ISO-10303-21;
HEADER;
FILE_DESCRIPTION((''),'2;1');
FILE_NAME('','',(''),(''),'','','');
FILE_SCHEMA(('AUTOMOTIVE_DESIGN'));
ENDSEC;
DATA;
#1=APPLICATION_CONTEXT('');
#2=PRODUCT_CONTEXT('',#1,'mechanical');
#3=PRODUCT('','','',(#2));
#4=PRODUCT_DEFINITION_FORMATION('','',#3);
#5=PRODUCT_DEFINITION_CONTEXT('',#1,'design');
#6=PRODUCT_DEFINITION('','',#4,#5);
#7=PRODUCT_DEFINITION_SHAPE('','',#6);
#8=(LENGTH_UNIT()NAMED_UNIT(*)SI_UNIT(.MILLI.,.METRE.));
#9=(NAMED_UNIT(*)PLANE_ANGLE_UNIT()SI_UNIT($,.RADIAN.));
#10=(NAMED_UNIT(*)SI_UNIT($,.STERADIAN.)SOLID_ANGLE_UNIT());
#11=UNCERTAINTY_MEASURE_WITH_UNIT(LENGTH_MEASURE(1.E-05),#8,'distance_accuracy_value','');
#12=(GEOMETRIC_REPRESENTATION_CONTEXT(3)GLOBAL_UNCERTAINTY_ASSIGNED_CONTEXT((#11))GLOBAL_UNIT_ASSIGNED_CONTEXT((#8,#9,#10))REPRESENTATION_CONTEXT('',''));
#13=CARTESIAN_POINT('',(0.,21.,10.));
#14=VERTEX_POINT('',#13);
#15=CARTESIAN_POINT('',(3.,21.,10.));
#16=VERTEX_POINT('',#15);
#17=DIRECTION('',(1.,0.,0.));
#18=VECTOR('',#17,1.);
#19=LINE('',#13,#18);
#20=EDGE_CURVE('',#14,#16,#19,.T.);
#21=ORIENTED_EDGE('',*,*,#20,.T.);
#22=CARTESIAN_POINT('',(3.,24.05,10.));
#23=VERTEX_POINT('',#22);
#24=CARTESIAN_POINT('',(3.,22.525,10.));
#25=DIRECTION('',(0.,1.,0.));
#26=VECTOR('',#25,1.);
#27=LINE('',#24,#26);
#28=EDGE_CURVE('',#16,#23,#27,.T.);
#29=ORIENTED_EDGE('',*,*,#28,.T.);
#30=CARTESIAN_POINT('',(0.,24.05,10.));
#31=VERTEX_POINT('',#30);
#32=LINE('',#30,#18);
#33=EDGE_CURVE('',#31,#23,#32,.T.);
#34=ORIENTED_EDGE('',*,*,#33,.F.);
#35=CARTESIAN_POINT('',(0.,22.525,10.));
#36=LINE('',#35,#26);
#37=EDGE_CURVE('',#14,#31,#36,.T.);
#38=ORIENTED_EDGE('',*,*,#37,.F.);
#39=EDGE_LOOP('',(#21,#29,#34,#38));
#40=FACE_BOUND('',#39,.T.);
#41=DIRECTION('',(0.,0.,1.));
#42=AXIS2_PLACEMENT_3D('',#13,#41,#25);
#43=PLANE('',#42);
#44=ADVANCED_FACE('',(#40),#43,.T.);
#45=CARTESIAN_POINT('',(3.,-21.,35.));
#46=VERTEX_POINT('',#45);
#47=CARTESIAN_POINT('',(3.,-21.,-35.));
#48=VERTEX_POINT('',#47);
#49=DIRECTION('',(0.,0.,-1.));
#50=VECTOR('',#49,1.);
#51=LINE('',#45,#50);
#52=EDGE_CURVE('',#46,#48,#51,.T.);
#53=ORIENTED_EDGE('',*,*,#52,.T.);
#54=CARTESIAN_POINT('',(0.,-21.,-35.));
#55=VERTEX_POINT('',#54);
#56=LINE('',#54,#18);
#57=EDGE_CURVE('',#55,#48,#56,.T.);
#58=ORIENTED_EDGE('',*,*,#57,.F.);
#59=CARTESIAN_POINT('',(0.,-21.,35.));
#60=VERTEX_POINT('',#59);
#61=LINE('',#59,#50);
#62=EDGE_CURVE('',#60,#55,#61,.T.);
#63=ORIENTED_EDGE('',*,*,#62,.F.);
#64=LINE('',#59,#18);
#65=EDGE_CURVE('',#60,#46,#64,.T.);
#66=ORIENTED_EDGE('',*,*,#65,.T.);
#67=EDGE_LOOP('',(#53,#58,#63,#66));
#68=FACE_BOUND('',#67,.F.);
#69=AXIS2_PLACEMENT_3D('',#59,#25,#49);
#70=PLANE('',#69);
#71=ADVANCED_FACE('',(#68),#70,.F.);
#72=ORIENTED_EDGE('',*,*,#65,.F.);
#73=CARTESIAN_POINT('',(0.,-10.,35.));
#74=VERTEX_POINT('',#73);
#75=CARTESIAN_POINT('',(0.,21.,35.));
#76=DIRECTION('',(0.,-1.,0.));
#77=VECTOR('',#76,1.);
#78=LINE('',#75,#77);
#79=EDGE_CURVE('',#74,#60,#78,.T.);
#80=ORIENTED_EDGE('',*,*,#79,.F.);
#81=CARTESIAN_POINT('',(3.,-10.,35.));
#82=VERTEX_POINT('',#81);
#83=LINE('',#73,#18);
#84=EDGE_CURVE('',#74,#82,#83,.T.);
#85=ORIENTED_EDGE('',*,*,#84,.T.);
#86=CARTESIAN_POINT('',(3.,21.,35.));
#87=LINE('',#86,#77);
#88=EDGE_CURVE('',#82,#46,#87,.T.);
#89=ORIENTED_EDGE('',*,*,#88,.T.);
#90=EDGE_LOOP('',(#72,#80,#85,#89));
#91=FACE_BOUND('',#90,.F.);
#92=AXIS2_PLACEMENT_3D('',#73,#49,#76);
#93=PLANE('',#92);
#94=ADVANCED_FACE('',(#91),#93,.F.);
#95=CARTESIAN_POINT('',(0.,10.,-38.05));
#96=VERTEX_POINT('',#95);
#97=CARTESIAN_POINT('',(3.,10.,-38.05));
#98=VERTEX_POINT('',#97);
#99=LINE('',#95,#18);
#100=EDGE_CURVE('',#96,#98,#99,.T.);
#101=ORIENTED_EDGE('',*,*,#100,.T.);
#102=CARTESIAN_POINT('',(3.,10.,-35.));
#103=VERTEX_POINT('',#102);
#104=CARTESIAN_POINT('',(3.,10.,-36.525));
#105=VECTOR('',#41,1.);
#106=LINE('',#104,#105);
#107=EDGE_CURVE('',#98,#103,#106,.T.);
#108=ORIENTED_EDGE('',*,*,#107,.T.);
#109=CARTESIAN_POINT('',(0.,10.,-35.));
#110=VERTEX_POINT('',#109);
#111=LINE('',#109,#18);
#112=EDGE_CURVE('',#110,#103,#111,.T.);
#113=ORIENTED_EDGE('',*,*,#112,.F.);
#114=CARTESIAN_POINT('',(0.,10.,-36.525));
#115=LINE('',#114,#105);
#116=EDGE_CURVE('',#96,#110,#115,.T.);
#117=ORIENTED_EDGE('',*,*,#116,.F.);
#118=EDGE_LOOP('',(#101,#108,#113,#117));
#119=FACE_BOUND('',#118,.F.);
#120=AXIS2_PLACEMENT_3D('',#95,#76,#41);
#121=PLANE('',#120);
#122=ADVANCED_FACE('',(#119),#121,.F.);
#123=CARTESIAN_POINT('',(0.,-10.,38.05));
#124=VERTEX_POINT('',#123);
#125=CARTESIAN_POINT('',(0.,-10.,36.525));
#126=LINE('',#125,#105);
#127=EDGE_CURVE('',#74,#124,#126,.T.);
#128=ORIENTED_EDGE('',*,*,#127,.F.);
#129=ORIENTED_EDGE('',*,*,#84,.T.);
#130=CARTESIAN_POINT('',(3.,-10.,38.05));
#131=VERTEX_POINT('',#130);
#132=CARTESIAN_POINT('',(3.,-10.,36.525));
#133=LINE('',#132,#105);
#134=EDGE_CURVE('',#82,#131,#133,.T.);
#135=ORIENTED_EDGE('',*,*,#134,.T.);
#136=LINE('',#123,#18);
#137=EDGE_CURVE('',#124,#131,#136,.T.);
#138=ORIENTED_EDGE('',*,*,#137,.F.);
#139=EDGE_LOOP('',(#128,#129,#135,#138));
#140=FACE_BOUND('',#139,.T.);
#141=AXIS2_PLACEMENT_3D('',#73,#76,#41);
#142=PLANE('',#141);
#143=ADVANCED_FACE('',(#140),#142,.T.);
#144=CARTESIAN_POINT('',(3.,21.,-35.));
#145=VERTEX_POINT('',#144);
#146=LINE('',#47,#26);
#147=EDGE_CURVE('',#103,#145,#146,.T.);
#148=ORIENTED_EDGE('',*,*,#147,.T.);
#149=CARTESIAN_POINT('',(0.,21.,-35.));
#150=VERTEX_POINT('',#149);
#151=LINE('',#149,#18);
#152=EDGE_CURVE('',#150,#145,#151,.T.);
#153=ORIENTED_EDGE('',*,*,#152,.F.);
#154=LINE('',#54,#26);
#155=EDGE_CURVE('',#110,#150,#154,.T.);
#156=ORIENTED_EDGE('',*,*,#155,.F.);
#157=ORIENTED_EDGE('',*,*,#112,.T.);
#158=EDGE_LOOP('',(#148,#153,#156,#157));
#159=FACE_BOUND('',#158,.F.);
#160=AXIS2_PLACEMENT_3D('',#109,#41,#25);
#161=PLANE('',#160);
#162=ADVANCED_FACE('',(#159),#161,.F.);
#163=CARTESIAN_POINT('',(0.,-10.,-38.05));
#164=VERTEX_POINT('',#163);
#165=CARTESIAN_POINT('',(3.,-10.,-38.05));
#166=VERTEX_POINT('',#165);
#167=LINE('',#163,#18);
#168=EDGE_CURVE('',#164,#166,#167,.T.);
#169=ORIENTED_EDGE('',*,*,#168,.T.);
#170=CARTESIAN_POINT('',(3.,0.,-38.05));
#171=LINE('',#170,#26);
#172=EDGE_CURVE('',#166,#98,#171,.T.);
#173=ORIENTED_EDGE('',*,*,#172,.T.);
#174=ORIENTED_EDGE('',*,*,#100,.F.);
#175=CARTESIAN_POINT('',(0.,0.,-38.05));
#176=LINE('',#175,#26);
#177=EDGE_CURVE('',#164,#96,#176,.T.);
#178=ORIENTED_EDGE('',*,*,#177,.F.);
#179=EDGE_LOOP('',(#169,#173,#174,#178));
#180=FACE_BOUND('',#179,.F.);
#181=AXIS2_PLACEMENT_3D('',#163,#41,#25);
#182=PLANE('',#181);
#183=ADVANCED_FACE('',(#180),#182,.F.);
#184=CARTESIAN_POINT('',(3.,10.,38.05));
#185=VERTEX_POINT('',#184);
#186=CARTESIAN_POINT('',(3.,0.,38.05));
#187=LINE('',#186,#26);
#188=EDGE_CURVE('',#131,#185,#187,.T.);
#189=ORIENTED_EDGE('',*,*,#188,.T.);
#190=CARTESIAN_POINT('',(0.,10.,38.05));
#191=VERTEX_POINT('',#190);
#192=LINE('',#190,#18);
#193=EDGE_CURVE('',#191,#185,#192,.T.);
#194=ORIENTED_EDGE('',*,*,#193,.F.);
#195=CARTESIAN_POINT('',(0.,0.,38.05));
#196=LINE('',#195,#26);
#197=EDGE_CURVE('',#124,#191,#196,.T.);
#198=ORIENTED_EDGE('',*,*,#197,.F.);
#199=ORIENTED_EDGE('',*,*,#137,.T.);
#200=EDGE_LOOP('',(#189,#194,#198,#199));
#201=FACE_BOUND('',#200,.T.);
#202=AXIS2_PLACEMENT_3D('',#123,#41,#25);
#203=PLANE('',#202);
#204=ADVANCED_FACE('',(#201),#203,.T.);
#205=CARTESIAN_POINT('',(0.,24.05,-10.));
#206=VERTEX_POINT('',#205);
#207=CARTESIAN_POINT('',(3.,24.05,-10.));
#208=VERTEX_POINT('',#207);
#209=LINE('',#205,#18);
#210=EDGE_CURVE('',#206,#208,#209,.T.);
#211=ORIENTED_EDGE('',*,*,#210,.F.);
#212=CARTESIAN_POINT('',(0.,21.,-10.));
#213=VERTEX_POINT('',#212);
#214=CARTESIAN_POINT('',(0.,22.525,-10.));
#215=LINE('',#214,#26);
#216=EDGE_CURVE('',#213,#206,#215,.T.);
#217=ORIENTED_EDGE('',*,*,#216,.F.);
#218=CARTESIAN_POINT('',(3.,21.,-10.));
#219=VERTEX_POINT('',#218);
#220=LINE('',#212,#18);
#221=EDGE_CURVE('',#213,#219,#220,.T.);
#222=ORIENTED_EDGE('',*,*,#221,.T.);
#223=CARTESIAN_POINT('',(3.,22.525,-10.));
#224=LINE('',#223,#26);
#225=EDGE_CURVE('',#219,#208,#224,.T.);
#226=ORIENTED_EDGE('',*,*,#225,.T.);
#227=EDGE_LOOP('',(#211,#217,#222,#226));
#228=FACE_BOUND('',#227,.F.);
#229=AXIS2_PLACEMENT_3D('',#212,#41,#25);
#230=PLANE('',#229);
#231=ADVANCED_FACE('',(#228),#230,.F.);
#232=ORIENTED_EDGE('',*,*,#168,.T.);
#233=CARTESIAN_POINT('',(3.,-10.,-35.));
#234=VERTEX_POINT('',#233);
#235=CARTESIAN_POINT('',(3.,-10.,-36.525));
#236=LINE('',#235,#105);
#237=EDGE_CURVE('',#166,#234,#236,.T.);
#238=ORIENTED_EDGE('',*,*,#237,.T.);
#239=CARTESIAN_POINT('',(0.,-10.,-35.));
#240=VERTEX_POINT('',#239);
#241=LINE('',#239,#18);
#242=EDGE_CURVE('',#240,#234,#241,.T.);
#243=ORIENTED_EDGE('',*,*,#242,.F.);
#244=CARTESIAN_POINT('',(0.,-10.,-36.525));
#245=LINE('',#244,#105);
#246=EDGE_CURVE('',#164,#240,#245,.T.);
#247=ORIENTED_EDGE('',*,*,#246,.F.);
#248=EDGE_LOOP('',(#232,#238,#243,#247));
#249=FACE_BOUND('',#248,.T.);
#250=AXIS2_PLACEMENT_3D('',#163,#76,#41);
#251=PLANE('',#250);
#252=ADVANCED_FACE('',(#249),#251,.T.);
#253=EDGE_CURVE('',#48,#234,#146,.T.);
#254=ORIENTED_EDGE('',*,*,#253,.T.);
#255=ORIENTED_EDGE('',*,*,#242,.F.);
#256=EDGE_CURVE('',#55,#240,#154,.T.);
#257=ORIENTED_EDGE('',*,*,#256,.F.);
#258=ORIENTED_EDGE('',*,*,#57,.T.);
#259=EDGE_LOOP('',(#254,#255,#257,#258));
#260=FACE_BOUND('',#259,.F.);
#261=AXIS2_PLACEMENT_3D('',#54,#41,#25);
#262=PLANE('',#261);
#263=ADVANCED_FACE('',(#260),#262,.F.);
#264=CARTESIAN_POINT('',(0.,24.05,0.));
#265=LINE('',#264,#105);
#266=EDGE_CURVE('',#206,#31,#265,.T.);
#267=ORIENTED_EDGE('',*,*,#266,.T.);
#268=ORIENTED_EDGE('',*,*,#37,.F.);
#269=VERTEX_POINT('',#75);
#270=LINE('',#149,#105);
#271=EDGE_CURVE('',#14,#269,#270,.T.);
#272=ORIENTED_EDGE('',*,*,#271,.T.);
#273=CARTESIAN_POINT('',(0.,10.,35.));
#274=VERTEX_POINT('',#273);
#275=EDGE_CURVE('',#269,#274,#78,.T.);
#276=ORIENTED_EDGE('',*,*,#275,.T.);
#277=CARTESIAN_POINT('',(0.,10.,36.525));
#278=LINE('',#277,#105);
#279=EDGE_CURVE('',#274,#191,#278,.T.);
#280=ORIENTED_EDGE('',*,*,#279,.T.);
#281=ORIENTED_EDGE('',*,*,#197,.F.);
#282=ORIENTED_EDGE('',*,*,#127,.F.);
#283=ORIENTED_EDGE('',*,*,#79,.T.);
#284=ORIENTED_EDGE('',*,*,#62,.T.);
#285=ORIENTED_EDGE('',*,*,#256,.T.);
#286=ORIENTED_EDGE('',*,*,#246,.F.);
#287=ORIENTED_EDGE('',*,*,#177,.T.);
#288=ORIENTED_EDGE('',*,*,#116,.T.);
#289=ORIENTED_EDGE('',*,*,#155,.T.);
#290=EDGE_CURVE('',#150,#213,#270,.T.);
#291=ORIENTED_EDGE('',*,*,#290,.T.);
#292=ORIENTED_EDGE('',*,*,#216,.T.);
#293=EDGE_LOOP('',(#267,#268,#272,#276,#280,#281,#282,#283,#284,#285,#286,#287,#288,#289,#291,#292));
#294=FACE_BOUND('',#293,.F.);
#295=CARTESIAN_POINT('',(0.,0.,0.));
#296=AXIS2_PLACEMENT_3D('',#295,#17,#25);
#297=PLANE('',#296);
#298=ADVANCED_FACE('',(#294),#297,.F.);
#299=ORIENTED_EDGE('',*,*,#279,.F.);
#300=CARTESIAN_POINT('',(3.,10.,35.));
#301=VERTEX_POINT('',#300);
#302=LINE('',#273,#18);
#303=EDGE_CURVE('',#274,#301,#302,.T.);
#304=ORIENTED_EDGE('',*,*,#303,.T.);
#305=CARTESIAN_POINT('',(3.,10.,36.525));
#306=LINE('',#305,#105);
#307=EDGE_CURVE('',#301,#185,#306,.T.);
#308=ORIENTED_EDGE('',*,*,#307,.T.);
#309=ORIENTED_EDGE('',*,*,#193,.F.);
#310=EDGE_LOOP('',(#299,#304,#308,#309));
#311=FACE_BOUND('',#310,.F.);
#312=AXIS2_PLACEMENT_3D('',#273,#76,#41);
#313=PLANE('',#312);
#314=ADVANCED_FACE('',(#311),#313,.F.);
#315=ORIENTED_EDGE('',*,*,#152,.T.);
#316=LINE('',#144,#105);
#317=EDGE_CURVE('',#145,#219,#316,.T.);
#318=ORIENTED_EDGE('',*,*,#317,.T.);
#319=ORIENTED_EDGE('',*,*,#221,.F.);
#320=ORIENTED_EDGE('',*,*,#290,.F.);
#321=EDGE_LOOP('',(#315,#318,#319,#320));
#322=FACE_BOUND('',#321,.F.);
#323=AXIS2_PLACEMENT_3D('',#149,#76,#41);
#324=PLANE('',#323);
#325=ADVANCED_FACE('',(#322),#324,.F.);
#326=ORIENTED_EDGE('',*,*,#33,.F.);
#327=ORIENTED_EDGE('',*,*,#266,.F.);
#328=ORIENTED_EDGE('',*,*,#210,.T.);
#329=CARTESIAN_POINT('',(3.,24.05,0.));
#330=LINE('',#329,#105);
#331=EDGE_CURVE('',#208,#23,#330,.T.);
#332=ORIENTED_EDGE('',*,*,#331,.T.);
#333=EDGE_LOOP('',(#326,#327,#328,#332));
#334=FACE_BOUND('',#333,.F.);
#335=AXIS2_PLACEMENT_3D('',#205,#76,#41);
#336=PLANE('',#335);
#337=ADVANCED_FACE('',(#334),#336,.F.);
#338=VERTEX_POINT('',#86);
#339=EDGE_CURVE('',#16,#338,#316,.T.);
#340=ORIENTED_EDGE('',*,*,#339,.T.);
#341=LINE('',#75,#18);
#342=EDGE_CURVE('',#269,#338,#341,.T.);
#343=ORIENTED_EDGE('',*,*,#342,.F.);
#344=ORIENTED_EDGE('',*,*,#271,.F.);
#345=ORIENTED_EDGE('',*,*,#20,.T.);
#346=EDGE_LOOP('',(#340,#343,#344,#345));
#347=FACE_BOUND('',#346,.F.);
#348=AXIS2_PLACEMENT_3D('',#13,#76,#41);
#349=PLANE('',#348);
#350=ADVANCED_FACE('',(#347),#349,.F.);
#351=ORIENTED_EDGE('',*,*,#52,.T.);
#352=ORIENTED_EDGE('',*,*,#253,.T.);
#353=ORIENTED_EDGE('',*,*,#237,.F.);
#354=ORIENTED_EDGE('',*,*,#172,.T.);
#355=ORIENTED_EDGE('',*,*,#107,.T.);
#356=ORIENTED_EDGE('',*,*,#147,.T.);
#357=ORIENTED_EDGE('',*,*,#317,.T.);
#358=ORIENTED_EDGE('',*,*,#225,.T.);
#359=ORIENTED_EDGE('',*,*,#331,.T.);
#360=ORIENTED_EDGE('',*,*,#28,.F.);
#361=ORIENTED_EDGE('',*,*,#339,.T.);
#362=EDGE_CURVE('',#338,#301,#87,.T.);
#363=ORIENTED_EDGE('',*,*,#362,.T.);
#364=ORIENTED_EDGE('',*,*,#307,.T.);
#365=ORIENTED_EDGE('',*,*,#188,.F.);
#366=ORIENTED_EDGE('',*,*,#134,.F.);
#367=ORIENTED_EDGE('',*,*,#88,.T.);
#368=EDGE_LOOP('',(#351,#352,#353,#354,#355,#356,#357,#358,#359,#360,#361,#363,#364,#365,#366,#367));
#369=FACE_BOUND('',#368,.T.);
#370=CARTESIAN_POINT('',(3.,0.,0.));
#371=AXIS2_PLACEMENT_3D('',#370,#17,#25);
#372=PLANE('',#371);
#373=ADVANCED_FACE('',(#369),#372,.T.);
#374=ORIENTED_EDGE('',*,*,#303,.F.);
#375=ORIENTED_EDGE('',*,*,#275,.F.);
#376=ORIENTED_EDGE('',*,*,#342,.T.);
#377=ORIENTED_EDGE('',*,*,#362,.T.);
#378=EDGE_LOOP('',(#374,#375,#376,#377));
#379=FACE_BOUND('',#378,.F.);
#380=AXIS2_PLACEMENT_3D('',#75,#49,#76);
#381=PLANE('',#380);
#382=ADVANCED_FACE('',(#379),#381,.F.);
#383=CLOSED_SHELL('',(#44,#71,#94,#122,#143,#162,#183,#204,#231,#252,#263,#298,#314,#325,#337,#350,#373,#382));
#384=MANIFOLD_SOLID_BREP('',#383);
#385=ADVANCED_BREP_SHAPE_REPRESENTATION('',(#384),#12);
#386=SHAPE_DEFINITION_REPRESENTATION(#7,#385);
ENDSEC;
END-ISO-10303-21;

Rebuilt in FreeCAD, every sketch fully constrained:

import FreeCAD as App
import Part
import Sketcher

V = App.Vector
Q = App.Units.Quantity


def add_polygon(sketch, points):
    """Adds a closed chain of lines whose ends are joined by coincident constraints."""
    first, n = sketch.GeometryCount, len(points)
    for a, b in zip(points, points[1:] + points[:1]):
        sketch.addGeometry(Part.LineSegment(App.Vector(*a, 0), App.Vector(*b, 0)), False)
    for i in range(n):
        sketch.addConstraint(Sketcher.Constraint("Coincident", first + i, 2, first + (i + 1) % n, 1))

doc = App.newDocument("Part")
body = doc.addObject("PartDesign::Body", "Body")

# Sketch on YZ plane
sketch1 = body.newObject("Sketcher::SketchObject", "Sketch")
sketch1.AttachmentSupport = (doc.getObject("YZ_Plane"), [""])
sketch1.MapMode = "FlatFace"
add_polygon(sketch1, [(21, -35), (21, -10), (24.05, -10), (24.05, 10), (21, 10), (21, 35), (10, 35), (10, 38.05), (-10, 38.05), (-10, 35), (-21, 35), (-21, -35), (-10, -35), (-10, -38.05), (10, -38.05), (10, -35)])  # lines 0-15
sketch1.addConstraint(Sketcher.Constraint("Vertical", 0))
sketch1.addConstraint(Sketcher.Constraint("Horizontal", 1))
sketch1.addConstraint(Sketcher.Constraint("Vertical", 2))
sketch1.addConstraint(Sketcher.Constraint("Horizontal", 3))
sketch1.addConstraint(Sketcher.Constraint("Vertical", 4))
sketch1.addConstraint(Sketcher.Constraint("Horizontal", 5))
sketch1.addConstraint(Sketcher.Constraint("Vertical", 6))
sketch1.addConstraint(Sketcher.Constraint("Horizontal", 7))
sketch1.addConstraint(Sketcher.Constraint("Vertical", 8))
sketch1.addConstraint(Sketcher.Constraint("Horizontal", 9))
sketch1.addConstraint(Sketcher.Constraint("Vertical", 10))
sketch1.addConstraint(Sketcher.Constraint("Horizontal", 11))
sketch1.addConstraint(Sketcher.Constraint("Vertical", 12))
sketch1.addConstraint(Sketcher.Constraint("Horizontal", 13))
sketch1.addConstraint(Sketcher.Constraint("Vertical", 14))
sketch1.addConstraint(Sketcher.Constraint("Horizontal", 15))
sketch1.addConstraint(Sketcher.Constraint("Symmetric", 4, 2, 10, 2, -1, 1))
sketch1.addConstraint(Sketcher.Constraint("Symmetric", 6, 2, 12, 2, -1, 1))
sketch1.addConstraint(Sketcher.Constraint("Symmetric", 8, 2, 14, 2, -1, 1))
sketch1.addConstraint(Sketcher.Constraint("Symmetric", 5, 2, 8, 2, -2))
sketch1.addConstraint(Sketcher.Constraint("Symmetric", 0, 2, 3, 2, -1))
sketch1.addConstraint(Sketcher.Constraint("Equal", 13, 2))
sketch1.addConstraint(Sketcher.Constraint("Equal", 3, 6))
sketch1.addConstraint(Sketcher.Constraint("DistanceX", 5, 2, 5, 1, Q("11 mm")))
sketch1.addConstraint(Sketcher.Constraint("DistanceX", 7, 2, 7, 1, Q("20 mm")))
sketch1.addConstraint(Sketcher.Constraint("DistanceY", 0, 1, 0, 2, Q("25 mm")))
sketch1.addConstraint(Sketcher.Constraint("DistanceX", 1, 1, 1, 2, Q("3.05 mm")))
pad1 = body.newObject("PartDesign::Pad", "Pad")
pad1.Profile = sketch1
pad1.Length = 3

doc.recompute()
